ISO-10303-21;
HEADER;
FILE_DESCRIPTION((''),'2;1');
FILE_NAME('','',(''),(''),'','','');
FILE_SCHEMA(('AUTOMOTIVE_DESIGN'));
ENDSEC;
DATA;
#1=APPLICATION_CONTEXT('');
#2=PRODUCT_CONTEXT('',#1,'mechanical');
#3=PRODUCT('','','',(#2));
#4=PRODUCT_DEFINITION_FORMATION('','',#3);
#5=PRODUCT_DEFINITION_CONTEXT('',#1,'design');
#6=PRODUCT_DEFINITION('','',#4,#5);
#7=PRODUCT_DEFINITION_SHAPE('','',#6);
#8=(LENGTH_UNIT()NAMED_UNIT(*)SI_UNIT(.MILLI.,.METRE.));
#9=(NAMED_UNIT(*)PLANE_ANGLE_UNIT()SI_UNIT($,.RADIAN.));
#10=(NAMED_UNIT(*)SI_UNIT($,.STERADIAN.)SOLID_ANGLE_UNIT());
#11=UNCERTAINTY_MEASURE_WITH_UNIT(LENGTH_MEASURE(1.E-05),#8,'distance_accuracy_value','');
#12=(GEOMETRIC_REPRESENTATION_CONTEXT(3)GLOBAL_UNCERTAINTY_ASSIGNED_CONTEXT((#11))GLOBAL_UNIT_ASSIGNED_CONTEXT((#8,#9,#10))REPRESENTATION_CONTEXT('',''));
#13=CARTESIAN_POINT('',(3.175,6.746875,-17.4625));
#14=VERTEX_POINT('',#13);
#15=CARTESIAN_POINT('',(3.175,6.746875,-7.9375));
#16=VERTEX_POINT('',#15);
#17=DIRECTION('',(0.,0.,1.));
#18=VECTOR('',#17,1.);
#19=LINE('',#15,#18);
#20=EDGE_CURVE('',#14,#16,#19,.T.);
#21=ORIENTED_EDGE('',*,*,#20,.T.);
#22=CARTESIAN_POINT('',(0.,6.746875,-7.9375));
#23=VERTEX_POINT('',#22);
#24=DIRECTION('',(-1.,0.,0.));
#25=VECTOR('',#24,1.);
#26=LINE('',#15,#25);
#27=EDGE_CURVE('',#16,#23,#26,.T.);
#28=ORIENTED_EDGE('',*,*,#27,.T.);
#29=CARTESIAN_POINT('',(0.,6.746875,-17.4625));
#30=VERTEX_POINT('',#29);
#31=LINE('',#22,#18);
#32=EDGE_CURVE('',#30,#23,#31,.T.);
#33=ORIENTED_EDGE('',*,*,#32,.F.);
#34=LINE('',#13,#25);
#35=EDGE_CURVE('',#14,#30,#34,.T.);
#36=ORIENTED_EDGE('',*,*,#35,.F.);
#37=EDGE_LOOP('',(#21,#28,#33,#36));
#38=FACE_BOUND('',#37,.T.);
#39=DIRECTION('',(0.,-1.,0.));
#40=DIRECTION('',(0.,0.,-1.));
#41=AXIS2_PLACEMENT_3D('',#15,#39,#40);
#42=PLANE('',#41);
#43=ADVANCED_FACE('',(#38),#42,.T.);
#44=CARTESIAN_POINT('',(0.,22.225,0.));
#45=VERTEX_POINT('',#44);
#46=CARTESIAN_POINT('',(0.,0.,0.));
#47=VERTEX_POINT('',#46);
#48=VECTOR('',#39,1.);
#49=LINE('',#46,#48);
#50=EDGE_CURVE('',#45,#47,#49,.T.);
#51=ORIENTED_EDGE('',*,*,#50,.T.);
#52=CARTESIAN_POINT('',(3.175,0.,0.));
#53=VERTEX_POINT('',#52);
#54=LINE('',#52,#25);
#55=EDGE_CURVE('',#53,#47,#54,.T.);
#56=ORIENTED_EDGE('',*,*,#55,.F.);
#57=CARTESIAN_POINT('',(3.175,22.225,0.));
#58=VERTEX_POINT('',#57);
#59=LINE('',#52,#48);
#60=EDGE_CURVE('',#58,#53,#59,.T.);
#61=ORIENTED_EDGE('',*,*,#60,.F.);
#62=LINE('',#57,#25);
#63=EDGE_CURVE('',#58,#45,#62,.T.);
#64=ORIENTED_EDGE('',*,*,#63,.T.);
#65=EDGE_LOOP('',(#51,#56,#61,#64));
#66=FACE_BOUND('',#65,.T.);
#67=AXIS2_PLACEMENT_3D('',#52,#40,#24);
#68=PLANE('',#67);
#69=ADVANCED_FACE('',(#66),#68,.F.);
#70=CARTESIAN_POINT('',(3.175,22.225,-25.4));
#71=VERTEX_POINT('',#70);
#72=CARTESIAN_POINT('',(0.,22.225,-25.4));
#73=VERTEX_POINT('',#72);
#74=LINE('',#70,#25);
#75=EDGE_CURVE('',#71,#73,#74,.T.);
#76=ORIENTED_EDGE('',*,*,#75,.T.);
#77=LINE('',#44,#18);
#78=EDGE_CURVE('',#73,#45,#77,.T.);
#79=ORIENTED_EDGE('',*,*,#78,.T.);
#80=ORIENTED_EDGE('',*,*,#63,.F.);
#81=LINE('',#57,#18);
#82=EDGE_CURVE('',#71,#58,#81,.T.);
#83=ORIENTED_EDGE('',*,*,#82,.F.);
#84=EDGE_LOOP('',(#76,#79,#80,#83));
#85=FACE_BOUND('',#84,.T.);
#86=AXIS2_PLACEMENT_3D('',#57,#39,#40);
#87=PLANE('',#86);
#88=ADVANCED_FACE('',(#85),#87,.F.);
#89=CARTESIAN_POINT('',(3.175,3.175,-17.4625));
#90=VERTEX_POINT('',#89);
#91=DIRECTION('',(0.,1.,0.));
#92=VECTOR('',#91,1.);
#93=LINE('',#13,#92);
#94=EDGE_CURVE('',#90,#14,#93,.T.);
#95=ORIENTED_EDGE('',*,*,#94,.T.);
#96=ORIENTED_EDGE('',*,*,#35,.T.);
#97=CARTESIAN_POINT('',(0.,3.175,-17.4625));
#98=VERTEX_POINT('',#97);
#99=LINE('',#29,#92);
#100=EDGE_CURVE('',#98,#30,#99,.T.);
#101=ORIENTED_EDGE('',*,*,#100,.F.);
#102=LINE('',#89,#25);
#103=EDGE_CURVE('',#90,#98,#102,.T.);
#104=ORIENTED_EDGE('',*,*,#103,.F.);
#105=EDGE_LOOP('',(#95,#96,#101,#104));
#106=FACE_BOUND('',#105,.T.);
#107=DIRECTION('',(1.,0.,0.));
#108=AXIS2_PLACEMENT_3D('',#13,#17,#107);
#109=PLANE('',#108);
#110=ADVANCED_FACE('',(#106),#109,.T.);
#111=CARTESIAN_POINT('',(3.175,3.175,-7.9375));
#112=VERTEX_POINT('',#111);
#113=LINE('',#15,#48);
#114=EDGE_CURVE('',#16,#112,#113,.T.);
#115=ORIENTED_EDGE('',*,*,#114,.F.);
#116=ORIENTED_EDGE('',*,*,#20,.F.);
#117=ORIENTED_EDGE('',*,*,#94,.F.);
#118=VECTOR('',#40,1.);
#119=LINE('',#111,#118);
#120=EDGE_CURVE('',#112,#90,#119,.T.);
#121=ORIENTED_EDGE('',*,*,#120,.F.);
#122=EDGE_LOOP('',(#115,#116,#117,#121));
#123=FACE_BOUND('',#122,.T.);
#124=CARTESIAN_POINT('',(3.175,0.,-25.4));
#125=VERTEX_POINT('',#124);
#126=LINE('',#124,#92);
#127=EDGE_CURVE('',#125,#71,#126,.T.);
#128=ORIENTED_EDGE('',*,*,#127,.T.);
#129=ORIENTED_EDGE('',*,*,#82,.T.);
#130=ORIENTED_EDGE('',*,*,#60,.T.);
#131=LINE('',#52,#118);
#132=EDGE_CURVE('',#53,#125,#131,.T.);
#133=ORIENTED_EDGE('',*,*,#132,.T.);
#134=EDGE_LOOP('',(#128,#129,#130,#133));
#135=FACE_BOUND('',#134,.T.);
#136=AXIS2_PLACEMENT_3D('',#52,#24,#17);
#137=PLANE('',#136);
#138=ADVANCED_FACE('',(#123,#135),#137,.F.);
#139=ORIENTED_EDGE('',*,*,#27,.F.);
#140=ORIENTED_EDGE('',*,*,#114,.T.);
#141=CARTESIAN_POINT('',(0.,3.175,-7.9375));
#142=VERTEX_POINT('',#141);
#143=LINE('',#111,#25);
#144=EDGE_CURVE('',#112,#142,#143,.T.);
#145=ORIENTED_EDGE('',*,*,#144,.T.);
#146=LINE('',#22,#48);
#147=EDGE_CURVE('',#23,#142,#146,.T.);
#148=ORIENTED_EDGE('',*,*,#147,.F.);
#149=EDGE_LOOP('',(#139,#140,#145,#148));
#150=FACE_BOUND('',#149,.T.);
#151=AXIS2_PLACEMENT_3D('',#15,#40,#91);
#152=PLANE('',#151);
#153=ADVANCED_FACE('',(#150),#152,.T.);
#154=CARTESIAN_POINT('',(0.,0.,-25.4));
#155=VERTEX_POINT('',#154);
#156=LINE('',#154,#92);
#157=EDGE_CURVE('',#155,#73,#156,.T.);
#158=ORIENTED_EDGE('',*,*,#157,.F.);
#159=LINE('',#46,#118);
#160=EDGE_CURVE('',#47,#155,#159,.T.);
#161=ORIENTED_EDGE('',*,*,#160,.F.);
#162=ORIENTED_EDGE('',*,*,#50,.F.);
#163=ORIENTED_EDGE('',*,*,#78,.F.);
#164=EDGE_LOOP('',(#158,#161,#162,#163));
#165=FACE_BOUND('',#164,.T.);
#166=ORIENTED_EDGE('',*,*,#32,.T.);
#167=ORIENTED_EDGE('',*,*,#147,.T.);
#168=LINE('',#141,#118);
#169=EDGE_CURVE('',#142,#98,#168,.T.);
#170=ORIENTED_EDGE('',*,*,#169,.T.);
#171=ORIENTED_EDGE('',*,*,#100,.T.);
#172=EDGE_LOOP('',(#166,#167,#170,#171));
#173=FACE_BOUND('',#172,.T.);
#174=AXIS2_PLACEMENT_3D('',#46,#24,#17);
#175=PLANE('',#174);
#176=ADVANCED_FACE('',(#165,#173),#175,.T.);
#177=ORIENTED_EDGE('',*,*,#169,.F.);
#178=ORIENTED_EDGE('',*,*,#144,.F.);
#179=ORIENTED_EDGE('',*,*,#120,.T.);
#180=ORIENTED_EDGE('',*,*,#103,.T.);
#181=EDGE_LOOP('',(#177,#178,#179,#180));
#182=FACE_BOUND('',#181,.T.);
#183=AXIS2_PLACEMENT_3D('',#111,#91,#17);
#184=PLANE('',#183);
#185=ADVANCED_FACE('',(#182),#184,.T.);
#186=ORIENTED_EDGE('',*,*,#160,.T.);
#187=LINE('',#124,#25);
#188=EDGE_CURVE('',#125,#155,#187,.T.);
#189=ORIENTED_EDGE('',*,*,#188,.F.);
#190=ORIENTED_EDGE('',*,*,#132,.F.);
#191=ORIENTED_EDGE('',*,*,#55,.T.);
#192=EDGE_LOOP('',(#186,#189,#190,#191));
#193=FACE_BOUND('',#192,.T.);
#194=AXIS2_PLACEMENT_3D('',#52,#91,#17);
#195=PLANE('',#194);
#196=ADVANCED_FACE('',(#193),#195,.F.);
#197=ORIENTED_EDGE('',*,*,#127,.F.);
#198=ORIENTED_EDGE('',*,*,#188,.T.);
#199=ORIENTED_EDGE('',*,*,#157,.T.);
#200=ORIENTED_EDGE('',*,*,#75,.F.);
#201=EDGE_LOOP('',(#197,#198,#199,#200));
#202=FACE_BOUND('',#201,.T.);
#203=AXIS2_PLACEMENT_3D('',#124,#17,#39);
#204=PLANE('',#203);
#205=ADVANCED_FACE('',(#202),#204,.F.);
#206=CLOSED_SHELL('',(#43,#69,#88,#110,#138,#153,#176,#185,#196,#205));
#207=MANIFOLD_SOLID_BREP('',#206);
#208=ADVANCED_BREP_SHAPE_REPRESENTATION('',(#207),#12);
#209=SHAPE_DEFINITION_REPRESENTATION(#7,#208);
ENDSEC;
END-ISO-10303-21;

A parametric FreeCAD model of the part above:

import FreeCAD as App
import Part
import Sketcher

V = App.Vector
Q = App.Units.Quantity

doc = App.newDocument("Part")
params = doc.addObject("Spreadsheet::Sheet", "Params")
for row, (alias, value) in enumerate([
    ("sketch1_height", "1 in"),
    ("sketch1_width", "0.875 in"),
    ("sketch1_width2", "0.140625 in"),
    ("sketch1_height2", "0.375 in"),
    ("pad1_length", "0.125 in"),
], start=1):
    params.set(f"A{row}", alias)
    params.set(f"B{row}", "=" + value)
    params.setAlias(f"B{row}", alias)

body = doc.addObject("PartDesign::Body", "Body")

# Sketch on YZ plane
sketch1 = doc.addObject("Sketcher::SketchObject", "Sketch")
body.addObject(sketch1)
sketch1.AttachmentSupport = (doc.YZ_Plane, [""])
sketch1.MapMode = "FlatFace"
sketch1.addGeometry(Part.LineSegment(V(22.2, 0, 0), V(0, 0, 0)), False)
sketch1.addGeometry(Part.LineSegment(V(0, 0, 0), V(0, -25.4, 0)), False)
sketch1.addGeometry(Part.LineSegment(V(0, -25.4, 0), V(22.2, -25.4, 0)), False)
sketch1.addGeometry(Part.LineSegment(V(22.2, -25.4, 0), V(22.2, 0, 0)), False)
sketch1.addGeometry(Part.LineSegment(V(3.2, -17.5, 0), V(3.2, -7.9, 0)), False)
sketch1.addGeometry(Part.LineSegment(V(3.2, -7.9, 0), V(6.7, -7.9, 0)), False)
sketch1.addGeometry(Part.LineSegment(V(6.7, -7.9, 0), V(6.7, -17.5, 0)), False)
sketch1.addGeometry(Part.LineSegment(V(6.7, -17.5, 0), V(3.2, -17.5, 0)), False)
sketch1.addConstraint(Sketcher.Constraint("Coincident", 0, 2, 1, 1))
sketch1.addConstraint(Sketcher.Constraint("Coincident", 1, 2, 2, 1))
sketch1.addConstraint(Sketcher.Constraint("Coincident", 2, 2, 3, 1))
sketch1.addConstraint(Sketcher.Constraint("Coincident", 3, 2, 0, 1))
sketch1.addConstraint(Sketcher.Constraint("Coincident", 4, 2, 5, 1))
sketch1.addConstraint(Sketcher.Constraint("Coincident", 5, 2, 6, 1))
sketch1.addConstraint(Sketcher.Constraint("Coincident", 6, 2, 7, 1))
sketch1.addConstraint(Sketcher.Constraint("Coincident", 7, 2, 4, 1))
sketch1.addConstraint(Sketcher.Constraint("Horizontal", 0))
sketch1.addConstraint(Sketcher.Constraint("Vertical", 1))
sketch1.addConstraint(Sketcher.Constraint("Horizontal", 2))
sketch1.addConstraint(Sketcher.Constraint("Vertical", 3))
sketch1.addConstraint(Sketcher.Constraint("Vertical", 4))
sketch1.addConstraint(Sketcher.Constraint("Horizontal", 5))
sketch1.addConstraint(Sketcher.Constraint("Vertical", 6))
sketch1.addConstraint(Sketcher.Constraint("Horizontal", 7))
sketch1.addConstraint(Sketcher.Constraint("Coincident", 0, 2, -1, 1))
sketch1.addConstraint(Sketcher.Constraint("DistanceY", 1, 2, 1, 1, Q("1 in")))
sketch1.addConstraint(Sketcher.Constraint("DistanceX", 0, 2, 0, 1, Q("0.875 in")))
sketch1.addConstraint(Sketcher.Constraint("DistanceX", 5, 1, 5, 2, Q("0.140625 in")))
sketch1.addConstraint(Sketcher.Constraint("DistanceY", 4, 1, 4, 2, Q("0.375 in")))
sketch1.addConstraint(Sketcher.Constraint("DistanceX", 4, 2, 3, 2, Q("0.75 in")))
sketch1.addConstraint(Sketcher.Constraint("DistanceY", 4, 2, -1, 1, Q("0.3125 in")))
sketch1.setExpression("Constraints[17]", "Params.sketch1_height")
sketch1.setExpression("Constraints[18]", "Params.sketch1_width")
sketch1.setExpression("Constraints[19]", "Params.sketch1_width2")
sketch1.setExpression("Constraints[20]", "Params.sketch1_height2")
pad1 = doc.addObject("PartDesign::Pad", "Pad")
body.addObject(pad1)
pad1.Profile = sketch1
pad1.setExpression("Length", "Params.pad1_length")

doc.recompute()
